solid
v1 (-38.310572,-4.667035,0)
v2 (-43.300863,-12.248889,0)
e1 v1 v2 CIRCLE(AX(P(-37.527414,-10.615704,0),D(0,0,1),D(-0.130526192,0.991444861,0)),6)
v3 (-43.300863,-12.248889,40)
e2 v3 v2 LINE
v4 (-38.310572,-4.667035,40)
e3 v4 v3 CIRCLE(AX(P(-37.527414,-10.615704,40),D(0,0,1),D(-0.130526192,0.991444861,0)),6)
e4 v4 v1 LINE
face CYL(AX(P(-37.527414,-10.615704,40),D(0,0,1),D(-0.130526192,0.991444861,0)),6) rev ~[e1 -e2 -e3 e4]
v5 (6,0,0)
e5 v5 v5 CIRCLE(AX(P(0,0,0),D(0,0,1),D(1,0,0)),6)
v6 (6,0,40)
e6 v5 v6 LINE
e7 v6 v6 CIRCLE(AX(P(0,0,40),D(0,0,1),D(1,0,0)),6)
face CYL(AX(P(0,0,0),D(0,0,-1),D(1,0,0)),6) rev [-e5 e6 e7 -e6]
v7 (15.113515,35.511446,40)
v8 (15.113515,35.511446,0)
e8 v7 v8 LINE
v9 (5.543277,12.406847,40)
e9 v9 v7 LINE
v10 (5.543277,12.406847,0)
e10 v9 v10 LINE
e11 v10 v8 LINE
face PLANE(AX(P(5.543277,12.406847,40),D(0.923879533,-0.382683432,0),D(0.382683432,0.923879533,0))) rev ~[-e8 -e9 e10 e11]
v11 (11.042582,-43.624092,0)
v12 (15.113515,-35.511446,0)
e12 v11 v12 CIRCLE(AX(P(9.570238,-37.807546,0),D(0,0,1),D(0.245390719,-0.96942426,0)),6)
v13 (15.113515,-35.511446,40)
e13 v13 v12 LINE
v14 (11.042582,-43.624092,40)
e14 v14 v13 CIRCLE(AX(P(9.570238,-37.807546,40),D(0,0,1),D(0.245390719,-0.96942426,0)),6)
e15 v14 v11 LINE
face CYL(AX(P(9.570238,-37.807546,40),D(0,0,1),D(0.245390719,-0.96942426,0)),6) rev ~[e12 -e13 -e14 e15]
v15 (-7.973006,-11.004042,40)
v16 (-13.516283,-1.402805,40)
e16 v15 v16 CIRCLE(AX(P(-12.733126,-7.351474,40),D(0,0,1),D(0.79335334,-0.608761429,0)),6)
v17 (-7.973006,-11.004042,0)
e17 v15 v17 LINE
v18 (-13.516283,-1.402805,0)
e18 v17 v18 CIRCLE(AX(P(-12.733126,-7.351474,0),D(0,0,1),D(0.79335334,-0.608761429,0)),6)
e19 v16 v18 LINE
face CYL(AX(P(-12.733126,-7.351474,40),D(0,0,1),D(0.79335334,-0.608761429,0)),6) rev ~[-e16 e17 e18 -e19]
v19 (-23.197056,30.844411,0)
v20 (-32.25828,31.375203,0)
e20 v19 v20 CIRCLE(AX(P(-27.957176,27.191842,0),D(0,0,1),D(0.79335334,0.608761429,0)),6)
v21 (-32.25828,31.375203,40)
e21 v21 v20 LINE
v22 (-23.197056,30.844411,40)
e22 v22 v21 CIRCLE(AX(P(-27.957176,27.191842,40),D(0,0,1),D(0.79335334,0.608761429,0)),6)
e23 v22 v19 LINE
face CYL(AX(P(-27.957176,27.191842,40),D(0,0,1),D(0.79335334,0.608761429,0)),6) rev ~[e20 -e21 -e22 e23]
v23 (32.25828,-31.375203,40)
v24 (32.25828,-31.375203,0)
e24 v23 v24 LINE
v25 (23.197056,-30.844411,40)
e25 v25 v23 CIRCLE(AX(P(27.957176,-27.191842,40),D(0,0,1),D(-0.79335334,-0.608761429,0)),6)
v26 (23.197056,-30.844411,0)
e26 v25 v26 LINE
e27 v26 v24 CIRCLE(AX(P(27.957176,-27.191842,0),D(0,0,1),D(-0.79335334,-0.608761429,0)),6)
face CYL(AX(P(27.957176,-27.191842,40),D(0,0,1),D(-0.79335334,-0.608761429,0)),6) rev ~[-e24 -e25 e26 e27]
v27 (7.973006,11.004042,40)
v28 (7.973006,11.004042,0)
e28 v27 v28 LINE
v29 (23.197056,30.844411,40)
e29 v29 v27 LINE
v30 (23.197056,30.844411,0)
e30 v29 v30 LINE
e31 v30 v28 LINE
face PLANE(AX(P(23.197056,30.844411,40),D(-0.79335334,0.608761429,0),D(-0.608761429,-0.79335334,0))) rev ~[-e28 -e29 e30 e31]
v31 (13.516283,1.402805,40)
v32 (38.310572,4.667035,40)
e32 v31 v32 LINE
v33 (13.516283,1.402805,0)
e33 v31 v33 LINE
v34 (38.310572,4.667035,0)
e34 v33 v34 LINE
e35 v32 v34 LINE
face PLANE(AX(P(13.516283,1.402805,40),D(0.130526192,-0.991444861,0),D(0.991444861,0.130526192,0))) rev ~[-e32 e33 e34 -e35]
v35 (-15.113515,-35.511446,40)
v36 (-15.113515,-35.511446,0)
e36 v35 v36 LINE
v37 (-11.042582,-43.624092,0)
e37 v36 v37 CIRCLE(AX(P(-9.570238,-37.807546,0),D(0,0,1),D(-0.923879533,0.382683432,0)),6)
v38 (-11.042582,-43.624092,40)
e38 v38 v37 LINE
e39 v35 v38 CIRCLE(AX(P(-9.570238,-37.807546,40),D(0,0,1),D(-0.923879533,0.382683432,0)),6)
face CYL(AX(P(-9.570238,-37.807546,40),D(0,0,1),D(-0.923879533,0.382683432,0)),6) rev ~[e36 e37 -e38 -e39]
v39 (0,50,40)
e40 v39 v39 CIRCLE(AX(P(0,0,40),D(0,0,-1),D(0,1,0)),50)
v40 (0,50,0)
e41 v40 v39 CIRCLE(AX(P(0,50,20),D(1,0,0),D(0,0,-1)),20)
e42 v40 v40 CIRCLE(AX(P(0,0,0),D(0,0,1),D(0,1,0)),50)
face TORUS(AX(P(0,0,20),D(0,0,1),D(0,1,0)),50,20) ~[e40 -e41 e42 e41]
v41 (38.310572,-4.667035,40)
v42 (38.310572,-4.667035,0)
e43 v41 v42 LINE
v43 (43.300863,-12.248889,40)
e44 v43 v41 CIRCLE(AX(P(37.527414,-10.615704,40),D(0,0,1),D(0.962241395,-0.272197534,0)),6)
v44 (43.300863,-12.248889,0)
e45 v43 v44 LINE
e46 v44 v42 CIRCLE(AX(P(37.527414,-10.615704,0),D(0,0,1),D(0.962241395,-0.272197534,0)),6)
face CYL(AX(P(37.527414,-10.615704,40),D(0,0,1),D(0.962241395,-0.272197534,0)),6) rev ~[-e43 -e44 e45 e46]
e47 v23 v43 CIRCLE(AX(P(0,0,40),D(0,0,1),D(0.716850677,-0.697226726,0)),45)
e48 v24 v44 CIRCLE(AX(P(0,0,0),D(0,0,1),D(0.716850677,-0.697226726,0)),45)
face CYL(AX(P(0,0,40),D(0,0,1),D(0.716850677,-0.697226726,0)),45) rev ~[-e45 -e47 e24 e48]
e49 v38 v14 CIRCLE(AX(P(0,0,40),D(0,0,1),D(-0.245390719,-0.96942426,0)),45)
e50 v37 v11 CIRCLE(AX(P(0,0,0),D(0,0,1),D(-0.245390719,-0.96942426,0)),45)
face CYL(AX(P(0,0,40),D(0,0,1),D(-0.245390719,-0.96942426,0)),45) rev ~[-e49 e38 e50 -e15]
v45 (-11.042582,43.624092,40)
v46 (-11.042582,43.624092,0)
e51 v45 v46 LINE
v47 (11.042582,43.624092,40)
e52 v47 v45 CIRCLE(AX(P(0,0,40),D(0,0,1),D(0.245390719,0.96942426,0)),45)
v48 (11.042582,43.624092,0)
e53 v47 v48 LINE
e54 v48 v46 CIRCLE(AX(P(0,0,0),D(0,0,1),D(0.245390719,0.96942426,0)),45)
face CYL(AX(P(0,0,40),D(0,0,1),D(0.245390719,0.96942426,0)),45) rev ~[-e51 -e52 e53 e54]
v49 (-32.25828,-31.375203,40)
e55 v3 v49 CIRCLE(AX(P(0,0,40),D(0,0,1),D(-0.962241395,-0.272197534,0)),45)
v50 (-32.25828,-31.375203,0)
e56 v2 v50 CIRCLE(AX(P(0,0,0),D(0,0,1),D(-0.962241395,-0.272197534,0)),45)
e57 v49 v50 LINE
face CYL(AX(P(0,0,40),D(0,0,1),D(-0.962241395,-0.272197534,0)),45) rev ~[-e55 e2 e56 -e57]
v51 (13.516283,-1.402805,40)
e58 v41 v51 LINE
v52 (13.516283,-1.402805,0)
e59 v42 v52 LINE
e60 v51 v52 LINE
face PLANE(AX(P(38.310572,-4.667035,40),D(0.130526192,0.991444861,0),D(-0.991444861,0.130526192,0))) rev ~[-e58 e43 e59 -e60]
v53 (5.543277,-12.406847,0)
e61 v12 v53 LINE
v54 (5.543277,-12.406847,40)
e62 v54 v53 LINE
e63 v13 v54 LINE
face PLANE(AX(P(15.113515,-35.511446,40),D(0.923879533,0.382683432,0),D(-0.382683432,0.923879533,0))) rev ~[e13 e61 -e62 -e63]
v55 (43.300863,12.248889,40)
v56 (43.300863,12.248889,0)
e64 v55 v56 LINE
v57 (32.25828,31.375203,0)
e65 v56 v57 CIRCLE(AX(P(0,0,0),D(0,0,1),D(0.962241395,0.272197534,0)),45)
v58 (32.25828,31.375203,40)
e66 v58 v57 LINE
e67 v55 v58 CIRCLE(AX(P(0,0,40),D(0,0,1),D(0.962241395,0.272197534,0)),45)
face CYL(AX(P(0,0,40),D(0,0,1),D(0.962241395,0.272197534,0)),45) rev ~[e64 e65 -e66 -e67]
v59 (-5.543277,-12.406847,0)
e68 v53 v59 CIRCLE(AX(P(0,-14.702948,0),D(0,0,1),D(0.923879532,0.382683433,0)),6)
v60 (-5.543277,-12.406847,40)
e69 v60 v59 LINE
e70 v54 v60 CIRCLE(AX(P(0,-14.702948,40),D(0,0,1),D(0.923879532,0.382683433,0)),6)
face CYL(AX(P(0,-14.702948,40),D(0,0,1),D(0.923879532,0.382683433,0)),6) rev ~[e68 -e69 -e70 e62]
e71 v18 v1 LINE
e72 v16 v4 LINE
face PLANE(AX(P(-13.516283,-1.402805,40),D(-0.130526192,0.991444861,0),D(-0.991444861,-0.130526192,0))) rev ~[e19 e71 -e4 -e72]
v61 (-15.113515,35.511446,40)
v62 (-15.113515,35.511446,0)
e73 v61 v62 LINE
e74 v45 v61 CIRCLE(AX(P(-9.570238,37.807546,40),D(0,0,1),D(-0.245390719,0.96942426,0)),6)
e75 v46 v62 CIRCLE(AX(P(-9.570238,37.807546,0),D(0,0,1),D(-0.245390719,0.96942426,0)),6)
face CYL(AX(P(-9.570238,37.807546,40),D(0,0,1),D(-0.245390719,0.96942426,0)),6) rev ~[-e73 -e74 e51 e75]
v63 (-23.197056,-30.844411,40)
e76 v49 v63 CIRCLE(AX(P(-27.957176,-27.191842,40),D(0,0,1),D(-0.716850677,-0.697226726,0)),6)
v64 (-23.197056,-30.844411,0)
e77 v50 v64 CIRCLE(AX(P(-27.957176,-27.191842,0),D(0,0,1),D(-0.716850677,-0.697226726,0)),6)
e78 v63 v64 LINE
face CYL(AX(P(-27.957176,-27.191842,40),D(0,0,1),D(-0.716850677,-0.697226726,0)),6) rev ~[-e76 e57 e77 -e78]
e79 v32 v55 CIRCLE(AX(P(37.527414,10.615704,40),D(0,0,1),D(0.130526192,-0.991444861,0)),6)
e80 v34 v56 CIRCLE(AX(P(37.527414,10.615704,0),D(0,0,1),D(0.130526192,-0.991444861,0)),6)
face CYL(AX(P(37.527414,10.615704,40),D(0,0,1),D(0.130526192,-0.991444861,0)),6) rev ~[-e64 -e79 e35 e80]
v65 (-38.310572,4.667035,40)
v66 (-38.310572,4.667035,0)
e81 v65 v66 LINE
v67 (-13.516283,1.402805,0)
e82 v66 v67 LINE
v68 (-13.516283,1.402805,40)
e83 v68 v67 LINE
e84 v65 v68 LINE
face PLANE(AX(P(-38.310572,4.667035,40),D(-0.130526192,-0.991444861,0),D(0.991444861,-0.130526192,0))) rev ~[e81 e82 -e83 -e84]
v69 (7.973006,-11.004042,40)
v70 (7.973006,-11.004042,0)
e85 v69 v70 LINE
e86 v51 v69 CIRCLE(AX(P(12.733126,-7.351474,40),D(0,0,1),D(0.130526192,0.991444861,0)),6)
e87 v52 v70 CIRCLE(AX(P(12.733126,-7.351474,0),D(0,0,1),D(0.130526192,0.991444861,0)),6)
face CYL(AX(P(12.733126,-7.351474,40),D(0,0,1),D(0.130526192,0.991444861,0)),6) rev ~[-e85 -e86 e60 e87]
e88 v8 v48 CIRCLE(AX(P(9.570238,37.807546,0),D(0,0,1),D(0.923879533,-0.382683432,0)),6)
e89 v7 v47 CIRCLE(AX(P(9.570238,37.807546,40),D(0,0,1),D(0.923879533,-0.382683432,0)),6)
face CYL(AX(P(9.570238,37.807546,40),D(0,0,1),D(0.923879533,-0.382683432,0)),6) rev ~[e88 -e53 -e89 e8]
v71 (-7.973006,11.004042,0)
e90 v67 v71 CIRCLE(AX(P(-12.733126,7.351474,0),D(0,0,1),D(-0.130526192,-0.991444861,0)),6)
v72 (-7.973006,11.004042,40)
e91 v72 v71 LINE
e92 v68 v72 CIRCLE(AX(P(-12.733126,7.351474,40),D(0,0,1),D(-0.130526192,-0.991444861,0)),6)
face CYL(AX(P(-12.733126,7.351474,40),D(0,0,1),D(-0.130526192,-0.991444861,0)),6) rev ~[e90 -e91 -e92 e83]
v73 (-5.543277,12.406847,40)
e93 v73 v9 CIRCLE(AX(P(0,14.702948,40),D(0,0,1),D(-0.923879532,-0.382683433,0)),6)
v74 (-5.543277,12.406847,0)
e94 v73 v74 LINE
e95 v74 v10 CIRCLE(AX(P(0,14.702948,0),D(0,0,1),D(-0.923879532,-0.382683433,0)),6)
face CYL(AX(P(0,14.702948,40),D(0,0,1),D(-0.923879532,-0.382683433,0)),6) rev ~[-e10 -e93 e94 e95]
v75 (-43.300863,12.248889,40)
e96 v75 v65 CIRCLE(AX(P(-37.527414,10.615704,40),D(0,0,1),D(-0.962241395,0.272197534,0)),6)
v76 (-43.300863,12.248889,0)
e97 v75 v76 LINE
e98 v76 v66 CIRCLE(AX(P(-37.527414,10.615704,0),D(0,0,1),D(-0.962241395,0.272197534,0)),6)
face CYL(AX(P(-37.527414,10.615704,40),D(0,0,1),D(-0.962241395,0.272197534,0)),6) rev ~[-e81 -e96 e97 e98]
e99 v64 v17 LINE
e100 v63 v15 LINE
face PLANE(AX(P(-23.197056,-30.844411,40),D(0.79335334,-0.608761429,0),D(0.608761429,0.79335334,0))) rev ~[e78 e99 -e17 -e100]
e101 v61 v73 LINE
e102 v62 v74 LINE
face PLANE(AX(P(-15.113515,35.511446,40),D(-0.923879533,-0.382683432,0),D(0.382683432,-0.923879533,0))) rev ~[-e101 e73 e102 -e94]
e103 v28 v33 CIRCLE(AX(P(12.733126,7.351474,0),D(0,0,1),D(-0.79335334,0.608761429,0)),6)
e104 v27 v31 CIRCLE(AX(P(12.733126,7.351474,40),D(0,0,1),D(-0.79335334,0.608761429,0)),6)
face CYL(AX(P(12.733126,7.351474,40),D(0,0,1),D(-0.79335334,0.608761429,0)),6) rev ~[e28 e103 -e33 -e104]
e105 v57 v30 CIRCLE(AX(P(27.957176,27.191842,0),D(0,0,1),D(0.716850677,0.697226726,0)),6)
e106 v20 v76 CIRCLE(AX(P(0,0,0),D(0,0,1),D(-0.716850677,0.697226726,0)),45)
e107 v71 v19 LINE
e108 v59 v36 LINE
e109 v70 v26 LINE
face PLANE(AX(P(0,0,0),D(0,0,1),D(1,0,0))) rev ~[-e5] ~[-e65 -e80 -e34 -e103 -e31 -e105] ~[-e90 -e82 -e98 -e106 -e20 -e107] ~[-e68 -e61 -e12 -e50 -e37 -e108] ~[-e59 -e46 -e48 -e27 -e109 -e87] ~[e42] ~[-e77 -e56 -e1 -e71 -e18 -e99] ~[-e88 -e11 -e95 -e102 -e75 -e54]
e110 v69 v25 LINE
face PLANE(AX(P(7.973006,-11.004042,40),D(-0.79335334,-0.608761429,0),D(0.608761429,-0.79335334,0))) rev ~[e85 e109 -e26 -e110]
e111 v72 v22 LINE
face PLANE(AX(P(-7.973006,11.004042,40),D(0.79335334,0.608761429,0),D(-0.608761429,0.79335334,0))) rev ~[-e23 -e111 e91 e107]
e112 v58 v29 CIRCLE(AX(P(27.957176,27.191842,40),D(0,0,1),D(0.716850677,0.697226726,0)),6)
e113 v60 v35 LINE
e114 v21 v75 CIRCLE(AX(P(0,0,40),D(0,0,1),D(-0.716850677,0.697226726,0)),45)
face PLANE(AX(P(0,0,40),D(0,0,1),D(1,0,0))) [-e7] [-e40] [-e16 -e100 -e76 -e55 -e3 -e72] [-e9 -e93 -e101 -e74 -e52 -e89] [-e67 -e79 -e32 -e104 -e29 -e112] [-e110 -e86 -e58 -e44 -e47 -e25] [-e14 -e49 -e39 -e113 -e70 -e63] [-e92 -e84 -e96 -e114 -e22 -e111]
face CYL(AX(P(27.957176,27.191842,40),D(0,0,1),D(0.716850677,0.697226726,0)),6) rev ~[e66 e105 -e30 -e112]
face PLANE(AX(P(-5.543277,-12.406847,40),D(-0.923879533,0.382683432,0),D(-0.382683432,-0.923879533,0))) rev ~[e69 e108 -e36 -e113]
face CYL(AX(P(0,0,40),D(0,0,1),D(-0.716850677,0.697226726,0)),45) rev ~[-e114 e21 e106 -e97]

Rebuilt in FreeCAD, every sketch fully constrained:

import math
import FreeCAD as App
import Part
import Sketcher
Q = App.Units.Quantity

doc = App.newDocument("Part")
body = doc.addObject("PartDesign::Body", "Body")

sketch1 = doc.addObject("Sketcher::SketchObject", "Sketch")
body.addObject(sketch1)
sketch1.AttachmentSupport = (doc.XY_Plane, [""])
sketch1.MapMode = "FlatFace"
sketch1.addGeometry(Part.Circle(App.Vector(0, 0, 0), App.Vector(0, 0, 1), 50), False)
sketch1.addGeometry(Part.Circle(App.Vector(0, 0, 0), App.Vector(0, 0, 1), 6), False)
sketch1.addConstraint(Sketcher.Constraint("Coincident", 0, 3, -1, 1))
sketch1.addConstraint(Sketcher.Constraint("Coincident", 1, 3, -1, 1))
sketch1.addConstraint(Sketcher.Constraint("Diameter", 0, Q("100 mm")))
sketch1.addConstraint(Sketcher.Constraint("Diameter", 1, Q("12 mm")))
pad1 = doc.addObject("PartDesign::Pad", "Pad")
body.addObject(pad1)
pad1.Profile = sketch1
pad1.Length = 40

sketch2 = doc.addObject("Sketcher::SketchObject", "Sketch001")
body.addObject(sketch2)
sketch2.AttachmentSupport = (doc.YZ_Plane, [""])
sketch2.MapMode = "FlatFace"
sketch2.addGeometry(Part.LineSegment(App.Vector(50, 40, 0), App.Vector(50, 0, 0)), False)
sketch2.addGeometry(Part.ArcOfCircle(Part.Circle(App.Vector(50, 20, 0), App.Vector(0, 0, 1), 20), math.radians(-90), math.radians(90)), False)
sketch2.addConstraint(Sketcher.Constraint("Coincident", 0, 1, 1, 2))
sketch2.addConstraint(Sketcher.Constraint("Coincident", 1, 1, 0, 2))
sketch2.addConstraint(Sketcher.Constraint("Vertical", 0))
sketch2.addConstraint(Sketcher.Constraint("PointOnObject", 1, 1, -1))
sketch2.addConstraint(Sketcher.Constraint("Vertical", 1, 3, 0, 1))
sketch2.addConstraint(Sketcher.Constraint("Radius", 1, Q("20 mm")))
sketch2.addConstraint(Sketcher.Constraint("DistanceX", -1, 1, 1, 3, Q("50 mm")))
revolution = doc.addObject("PartDesign::Revolution", "Revolution")
body.addObject(revolution)
revolution.Profile = sketch2
revolution.ReferenceAxis = (sketch2, ["V_Axis"])
revolution.Angle = 360

sketch3 = doc.addObject("Sketcher::SketchObject", "Sketch002")
body.addObject(sketch3)
sketch3.AttachmentSupport = (doc.XY_Plane, [""])
sketch3.MapMode = "FlatFace"
sketch3.AttachmentOffset = App.Placement(App.Vector(0, 0, 40), App.Rotation())
sketch3.addGeometry(Part.LineSegment(App.Vector(6, 12, 0), App.Vector(15, 36, 0)), False)
sketch3.addGeometry(Part.ArcOfCircle(Part.Circle(App.Vector(10, 38, 0), App.Vector(0, 0, 1), 6), math.radians(-22), math.radians(76)), False)
sketch3.addGeometry(Part.ArcOfCircle(Part.Circle(App.Vector(0, 0, 0), App.Vector(0, 0, 1), 45), math.radians(76), math.radians(104)), False)
sketch3.addGeometry(Part.ArcOfCircle(Part.Circle(App.Vector(-10, 38, 0), App.Vector(0, 0, 1), 6), math.radians(104), math.radians(202)), False)
sketch3.addGeometry(Part.LineSegment(App.Vector(-15, 36, 0), App.Vector(-6, 12, 0)), False)
sketch3.addGeometry(Part.ArcOfCircle(Part.Circle(App.Vector(0, 15, 0), App.Vector(0, 0, 1), 6), math.radians(-157), math.radians(-23)), False)
sketch3.addConstraint(Sketcher.Constraint("Tangent", 0, 2, 1, 1))
sketch3.addConstraint(Sketcher.Constraint("Tangent", 1, 2, 2, 1))
sketch3.addConstraint(Sketcher.Constraint("Tangent", 2, 2, 3, 1))
sketch3.addConstraint(Sketcher.Constraint("Tangent", 3, 2, 4, 1))
sketch3.addConstraint(Sketcher.Constraint("Tangent", 4, 2, 5, 1))
sketch3.addConstraint(Sketcher.Constraint("Tangent", 5, 2, 0, 1))
sketch3.addConstraint(Sketcher.Constraint("Coincident", 2, 3, -1, 1))
sketch3.addConstraint(Sketcher.Constraint("Equal", 1, 3))
sketch3.addConstraint(Sketcher.Constraint("Equal", 3, 5))
sketch3.addConstraint(Sketcher.Constraint("Symmetric", 0, 2, 3, 2, -2))
sketch3.addConstraint(Sketcher.Constraint("Radius", 1, Q("6 mm")))
sketch3.addConstraint(Sketcher.Constraint("Radius", 2, Q("45 mm")))
sketch3.addConstraint(Sketcher.Constraint("Angle", 0, Q("67.5 deg")))
sketch3.addConstraint(Sketcher.Constraint("DistanceY", 5, 3, 1, 3, Q("23.104598 mm")))
pocket1 = doc.addObject("PartDesign::Pocket", "Pocket")
body.addObject(pocket1)
pocket1.Profile = sketch3
pocket1.Type = "ThroughAll"
doc.recompute()

polarpattern = doc.addObject("PartDesign::PolarPattern", "PolarPattern")
body.addObject(polarpattern)
polarpattern.Originals = [pocket1]
polarpattern.Axis = (doc.Z_Axis, [""])
polarpattern.Angle = 360
polarpattern.Occurrences = 6
body.Tip = polarpattern

doc.recompute()
